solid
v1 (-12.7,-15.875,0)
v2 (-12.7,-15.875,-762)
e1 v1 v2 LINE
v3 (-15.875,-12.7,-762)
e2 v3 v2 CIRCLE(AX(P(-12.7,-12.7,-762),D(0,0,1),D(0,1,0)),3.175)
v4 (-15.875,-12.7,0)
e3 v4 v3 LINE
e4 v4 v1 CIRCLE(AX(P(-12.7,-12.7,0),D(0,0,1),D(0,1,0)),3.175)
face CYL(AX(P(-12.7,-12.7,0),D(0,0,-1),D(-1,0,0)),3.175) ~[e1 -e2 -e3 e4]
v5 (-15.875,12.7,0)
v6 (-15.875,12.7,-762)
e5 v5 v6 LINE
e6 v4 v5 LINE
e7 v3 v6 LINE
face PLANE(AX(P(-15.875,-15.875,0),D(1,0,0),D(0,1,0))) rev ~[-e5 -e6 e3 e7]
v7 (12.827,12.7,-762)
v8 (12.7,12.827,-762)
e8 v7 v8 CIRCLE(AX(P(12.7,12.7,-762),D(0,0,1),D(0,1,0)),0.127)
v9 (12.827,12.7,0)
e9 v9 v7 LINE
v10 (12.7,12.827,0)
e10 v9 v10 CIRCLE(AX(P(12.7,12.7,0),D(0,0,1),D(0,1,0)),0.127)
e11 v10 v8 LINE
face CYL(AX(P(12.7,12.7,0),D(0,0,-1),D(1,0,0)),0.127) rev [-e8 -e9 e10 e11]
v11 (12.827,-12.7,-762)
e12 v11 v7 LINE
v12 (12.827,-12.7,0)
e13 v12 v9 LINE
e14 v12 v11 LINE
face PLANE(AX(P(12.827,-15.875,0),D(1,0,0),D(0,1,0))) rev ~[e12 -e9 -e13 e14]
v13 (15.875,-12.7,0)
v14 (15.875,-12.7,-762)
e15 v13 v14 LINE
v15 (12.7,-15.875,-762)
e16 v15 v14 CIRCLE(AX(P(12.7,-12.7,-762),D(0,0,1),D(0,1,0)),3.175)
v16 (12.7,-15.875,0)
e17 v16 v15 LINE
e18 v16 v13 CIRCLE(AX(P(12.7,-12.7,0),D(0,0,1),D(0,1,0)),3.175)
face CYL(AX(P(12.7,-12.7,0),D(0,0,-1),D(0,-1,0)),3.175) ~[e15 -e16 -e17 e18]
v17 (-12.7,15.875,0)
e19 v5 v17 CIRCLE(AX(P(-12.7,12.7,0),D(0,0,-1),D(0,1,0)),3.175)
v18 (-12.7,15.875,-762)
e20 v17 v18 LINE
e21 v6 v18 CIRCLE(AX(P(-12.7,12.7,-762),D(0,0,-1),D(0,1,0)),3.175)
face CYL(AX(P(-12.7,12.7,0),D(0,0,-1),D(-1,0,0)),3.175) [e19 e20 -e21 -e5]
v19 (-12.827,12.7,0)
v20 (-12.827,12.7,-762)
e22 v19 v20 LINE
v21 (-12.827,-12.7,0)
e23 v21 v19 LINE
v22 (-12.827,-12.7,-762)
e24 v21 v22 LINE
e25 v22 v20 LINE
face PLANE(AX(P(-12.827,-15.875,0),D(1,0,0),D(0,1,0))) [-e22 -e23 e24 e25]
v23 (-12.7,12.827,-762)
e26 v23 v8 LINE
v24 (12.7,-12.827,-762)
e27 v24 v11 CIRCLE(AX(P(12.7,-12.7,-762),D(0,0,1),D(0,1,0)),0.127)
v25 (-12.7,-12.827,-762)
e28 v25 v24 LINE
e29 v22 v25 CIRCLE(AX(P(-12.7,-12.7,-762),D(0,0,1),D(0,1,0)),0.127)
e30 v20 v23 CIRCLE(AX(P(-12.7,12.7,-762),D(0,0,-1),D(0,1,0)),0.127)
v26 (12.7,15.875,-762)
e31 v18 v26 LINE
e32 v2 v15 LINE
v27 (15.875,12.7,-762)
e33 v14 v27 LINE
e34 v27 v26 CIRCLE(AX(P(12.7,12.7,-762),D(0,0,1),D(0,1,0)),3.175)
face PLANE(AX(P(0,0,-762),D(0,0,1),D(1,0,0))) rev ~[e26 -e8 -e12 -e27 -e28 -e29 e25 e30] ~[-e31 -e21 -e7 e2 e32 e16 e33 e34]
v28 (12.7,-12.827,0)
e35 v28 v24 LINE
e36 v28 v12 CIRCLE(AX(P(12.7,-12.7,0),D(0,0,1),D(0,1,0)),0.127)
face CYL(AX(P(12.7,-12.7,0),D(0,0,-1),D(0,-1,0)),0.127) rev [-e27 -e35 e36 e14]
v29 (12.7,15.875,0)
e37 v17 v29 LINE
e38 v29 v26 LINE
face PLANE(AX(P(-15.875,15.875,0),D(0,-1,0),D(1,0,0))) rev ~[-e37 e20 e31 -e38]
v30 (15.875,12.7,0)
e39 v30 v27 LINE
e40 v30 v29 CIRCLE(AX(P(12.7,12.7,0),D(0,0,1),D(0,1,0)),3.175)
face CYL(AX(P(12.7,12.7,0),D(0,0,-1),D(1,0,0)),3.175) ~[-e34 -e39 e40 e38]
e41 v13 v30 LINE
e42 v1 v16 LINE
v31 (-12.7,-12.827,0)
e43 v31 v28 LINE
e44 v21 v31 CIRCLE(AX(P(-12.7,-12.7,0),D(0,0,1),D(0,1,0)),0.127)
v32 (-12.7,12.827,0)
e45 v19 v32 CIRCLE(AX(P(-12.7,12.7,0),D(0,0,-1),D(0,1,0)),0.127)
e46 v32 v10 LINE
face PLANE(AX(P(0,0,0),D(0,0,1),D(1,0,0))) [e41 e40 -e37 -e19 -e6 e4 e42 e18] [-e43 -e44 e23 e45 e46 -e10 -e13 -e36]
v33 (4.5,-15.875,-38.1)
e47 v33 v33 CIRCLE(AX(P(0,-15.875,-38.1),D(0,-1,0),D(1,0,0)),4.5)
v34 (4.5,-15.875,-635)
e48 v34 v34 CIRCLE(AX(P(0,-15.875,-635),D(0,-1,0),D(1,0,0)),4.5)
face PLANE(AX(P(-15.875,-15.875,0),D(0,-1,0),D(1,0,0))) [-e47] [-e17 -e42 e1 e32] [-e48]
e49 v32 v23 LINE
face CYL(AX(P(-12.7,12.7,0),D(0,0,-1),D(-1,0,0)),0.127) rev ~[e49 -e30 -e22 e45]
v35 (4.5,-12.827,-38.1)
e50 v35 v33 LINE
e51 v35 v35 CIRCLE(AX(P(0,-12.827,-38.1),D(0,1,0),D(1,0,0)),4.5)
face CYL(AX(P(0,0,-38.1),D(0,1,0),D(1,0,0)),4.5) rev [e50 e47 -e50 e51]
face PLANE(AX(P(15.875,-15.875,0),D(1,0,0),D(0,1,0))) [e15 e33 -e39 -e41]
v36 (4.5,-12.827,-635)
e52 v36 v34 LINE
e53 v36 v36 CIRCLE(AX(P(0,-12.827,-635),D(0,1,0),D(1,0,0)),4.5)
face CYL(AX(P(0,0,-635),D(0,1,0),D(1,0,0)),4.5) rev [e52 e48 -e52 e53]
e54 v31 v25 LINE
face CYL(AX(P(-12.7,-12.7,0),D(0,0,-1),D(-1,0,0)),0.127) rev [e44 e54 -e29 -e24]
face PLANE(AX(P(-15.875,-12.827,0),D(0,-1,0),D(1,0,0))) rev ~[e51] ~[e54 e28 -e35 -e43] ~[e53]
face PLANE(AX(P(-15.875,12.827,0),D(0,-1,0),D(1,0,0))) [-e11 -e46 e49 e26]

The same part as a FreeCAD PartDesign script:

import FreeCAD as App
import Part
import Sketcher
from FreeCAD import Vector
Q = App.Units.Quantity


def edges_at(feature, points):
    """Names of the edges that pass closest to the given points."""
    edges = feature.Shape.Edges
    near = lambda p: min(range(len(edges)), key=lambda i: edges[i].distToShape(Part.Vertex(*p))[0])
    return sorted({f"Edge{near(p) + 1}" for p in points})


def faces_at(feature, points):
    """Names of the faces that lie closest to the given points."""
    faces = feature.Shape.Faces
    near = lambda p: min(range(len(faces)), key=lambda i: faces[i].distToShape(Part.Vertex(*p))[0])
    return sorted({f"Face{near(p) + 1}" for p in points})

doc = App.newDocument("Part")
body = doc.addObject("PartDesign::Body", "Body")

# Sketch on XY plane
sketch1 = doc.addObject("Sketcher::SketchObject", "Sketch")
body.addObject(sketch1)
sketch1.AttachmentSupport = (doc.XY_Plane, [""])
sketch1.MapMode = "FlatFace"
sketch1.addGeometry([
    Part.LineSegment(Vector(-15.875, 15.875, 0), Vector(-15.875, -15.875, 0)),
    Part.LineSegment(Vector(-15.875, -15.875, 0), Vector(15.875, -15.875, 0)),
    Part.LineSegment(Vector(15.875, -15.875, 0), Vector(15.875, 15.875, 0)),
    Part.LineSegment(Vector(15.875, 15.875, 0), Vector(-15.875, 15.875, 0)),
], False)
sketch1.addConstraint([
    Sketcher.Constraint("Coincident", 0, 2, 1, 1),
    Sketcher.Constraint("Coincident", 1, 2, 2, 1),
    Sketcher.Constraint("Coincident", 2, 2, 3, 1),
    Sketcher.Constraint("Coincident", 3, 2, 0, 1),
    Sketcher.Constraint("Vertical", 0),
    Sketcher.Constraint("Horizontal", 1),
    Sketcher.Constraint("Vertical", 2),
    Sketcher.Constraint("Horizontal", 3),
    Sketcher.Constraint("Symmetric", 0, 2, 2, 2, -1, 1),
    Sketcher.Constraint("Equal", 3, 0),
    Sketcher.Constraint("DistanceX", 1, 1, 1, 2, Q("1.25 in")),
])
pad1 = doc.addObject("PartDesign::Pad", "Pad")
body.addObject(pad1)
pad1.Profile = sketch1
pad1.Length = Q("30 in")
pad1.Reversed = True
doc.recompute()

fillet = doc.addObject("PartDesign::Fillet", "Fillet")
body.addObject(fillet)
fillet.Base = (pad1, edges_at(pad1, [
    (-15.875, 15.875, -381),
    (-15.875, -15.875, -381),
    (15.875, 15.875, -381),
    (15.875, -15.875, -381),
]))
fillet.Radius = Q("0.125 in")
doc.recompute()

thickness = doc.addObject("PartDesign::Thickness", "Thickness")
body.addObject(thickness)
thickness.Base = (fillet, faces_at(fillet, [(0, 0, 0), (0, 0, -762)]))
thickness.Value = Q("0.12 in")
thickness.Reversed = True
thickness.Join = "Arc"

# Sketch on XZ plane
sketch2 = doc.addObject("Sketcher::SketchObject", "Sketch001")
body.addObject(sketch2)
sketch2.AttachmentSupport = (doc.XZ_Plane, [""])
sketch2.MapMode = "FlatFace"
sketch2.addGeometry([
    Part.Circle(Vector(0, -38.1, 0), Vector(0, 0, 1), 4.5),
    Part.Circle(Vector(0, -635, 0), Vector(0, 0, 1), 4.5),
], False)
sketch2.addConstraint([
    Sketcher.Constraint("Equal", 0, 1),
    Sketcher.Constraint("PointOnObject", 0, 3, -2),
    Sketcher.Constraint("PointOnObject", 1, 3, -2),
    Sketcher.Constraint("DistanceY", 1, 3, -1, 1, Q("25 in")),
    Sketcher.Constraint("DistanceY", 0, 3, -1, 1, Q("1.5 in")),
    Sketcher.Constraint("Diameter", 0, 9.0),
])
pocket1 = doc.addObject("PartDesign::Pocket", "Pocket")
body.addObject(pocket1)
pocket1.Profile = sketch2
pocket1.Type = "ThroughAll"
pocket1.Reversed = True

doc.recompute()
